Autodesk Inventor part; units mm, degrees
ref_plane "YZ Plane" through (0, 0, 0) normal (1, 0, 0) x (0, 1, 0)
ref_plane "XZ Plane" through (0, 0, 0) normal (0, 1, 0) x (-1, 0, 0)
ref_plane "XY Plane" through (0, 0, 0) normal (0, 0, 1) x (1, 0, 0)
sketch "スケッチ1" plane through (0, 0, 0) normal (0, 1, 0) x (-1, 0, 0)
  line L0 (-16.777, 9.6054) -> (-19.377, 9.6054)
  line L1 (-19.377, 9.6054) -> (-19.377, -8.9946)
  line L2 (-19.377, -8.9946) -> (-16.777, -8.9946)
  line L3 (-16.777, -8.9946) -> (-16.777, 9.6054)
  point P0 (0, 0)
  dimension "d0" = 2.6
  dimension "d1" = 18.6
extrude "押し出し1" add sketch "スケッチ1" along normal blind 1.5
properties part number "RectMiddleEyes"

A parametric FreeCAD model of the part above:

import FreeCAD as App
import Part
import Sketcher


def add_polygon(sketch, points):
    """Adds a closed chain of lines whose ends are joined by coincident constraints."""
    first, n = sketch.GeometryCount, len(points)
    for a, b in zip(points, points[1:] + points[:1]):
        sketch.addGeometry(Part.LineSegment(App.Vector(*a, 0), App.Vector(*b, 0)), False)
    for i in range(n):
        sketch.addConstraint(Sketcher.Constraint("Coincident", first + i, 2, first + (i + 1) % n, 1))

doc = App.newDocument("Part")
body = doc.addObject("PartDesign::Body", "Body")

sketch1 = body.newObject("Sketcher::SketchObject", "Sketch")
sketch1.AttachmentSupport = (doc.getObject("XZ_Plane"), [""])
sketch1.MapMode = "FlatFace"
add_polygon(sketch1, [(16.777, -8.9946), (16.777, 9.6054), (19.377, 9.6054), (19.377, -8.9946)])
sketch1.addConstraint([
    Sketcher.Constraint("Vertical", 0),
    Sketcher.Constraint("Horizontal", 1),
    Sketcher.Constraint("Vertical", 2),
    Sketcher.Constraint("Horizontal", 3),
    Sketcher.Constraint("DistanceX", 1, 1, 1, 2, 2.6),
    Sketcher.Constraint("DistanceY", 0, 1, 0, 2, 18.6),
    Sketcher.Constraint("DistanceX", -1, 1, 0, 2, 16.777),
    Sketcher.Constraint("DistanceY", -1, 1, 0, 2, 9.6054),
])
pad1 = body.newObject("PartDesign::Pad", "Pad")
pad1.Profile = sketch1
pad1.Length = 1.5
pad1.Reversed = True

doc.recompute()
